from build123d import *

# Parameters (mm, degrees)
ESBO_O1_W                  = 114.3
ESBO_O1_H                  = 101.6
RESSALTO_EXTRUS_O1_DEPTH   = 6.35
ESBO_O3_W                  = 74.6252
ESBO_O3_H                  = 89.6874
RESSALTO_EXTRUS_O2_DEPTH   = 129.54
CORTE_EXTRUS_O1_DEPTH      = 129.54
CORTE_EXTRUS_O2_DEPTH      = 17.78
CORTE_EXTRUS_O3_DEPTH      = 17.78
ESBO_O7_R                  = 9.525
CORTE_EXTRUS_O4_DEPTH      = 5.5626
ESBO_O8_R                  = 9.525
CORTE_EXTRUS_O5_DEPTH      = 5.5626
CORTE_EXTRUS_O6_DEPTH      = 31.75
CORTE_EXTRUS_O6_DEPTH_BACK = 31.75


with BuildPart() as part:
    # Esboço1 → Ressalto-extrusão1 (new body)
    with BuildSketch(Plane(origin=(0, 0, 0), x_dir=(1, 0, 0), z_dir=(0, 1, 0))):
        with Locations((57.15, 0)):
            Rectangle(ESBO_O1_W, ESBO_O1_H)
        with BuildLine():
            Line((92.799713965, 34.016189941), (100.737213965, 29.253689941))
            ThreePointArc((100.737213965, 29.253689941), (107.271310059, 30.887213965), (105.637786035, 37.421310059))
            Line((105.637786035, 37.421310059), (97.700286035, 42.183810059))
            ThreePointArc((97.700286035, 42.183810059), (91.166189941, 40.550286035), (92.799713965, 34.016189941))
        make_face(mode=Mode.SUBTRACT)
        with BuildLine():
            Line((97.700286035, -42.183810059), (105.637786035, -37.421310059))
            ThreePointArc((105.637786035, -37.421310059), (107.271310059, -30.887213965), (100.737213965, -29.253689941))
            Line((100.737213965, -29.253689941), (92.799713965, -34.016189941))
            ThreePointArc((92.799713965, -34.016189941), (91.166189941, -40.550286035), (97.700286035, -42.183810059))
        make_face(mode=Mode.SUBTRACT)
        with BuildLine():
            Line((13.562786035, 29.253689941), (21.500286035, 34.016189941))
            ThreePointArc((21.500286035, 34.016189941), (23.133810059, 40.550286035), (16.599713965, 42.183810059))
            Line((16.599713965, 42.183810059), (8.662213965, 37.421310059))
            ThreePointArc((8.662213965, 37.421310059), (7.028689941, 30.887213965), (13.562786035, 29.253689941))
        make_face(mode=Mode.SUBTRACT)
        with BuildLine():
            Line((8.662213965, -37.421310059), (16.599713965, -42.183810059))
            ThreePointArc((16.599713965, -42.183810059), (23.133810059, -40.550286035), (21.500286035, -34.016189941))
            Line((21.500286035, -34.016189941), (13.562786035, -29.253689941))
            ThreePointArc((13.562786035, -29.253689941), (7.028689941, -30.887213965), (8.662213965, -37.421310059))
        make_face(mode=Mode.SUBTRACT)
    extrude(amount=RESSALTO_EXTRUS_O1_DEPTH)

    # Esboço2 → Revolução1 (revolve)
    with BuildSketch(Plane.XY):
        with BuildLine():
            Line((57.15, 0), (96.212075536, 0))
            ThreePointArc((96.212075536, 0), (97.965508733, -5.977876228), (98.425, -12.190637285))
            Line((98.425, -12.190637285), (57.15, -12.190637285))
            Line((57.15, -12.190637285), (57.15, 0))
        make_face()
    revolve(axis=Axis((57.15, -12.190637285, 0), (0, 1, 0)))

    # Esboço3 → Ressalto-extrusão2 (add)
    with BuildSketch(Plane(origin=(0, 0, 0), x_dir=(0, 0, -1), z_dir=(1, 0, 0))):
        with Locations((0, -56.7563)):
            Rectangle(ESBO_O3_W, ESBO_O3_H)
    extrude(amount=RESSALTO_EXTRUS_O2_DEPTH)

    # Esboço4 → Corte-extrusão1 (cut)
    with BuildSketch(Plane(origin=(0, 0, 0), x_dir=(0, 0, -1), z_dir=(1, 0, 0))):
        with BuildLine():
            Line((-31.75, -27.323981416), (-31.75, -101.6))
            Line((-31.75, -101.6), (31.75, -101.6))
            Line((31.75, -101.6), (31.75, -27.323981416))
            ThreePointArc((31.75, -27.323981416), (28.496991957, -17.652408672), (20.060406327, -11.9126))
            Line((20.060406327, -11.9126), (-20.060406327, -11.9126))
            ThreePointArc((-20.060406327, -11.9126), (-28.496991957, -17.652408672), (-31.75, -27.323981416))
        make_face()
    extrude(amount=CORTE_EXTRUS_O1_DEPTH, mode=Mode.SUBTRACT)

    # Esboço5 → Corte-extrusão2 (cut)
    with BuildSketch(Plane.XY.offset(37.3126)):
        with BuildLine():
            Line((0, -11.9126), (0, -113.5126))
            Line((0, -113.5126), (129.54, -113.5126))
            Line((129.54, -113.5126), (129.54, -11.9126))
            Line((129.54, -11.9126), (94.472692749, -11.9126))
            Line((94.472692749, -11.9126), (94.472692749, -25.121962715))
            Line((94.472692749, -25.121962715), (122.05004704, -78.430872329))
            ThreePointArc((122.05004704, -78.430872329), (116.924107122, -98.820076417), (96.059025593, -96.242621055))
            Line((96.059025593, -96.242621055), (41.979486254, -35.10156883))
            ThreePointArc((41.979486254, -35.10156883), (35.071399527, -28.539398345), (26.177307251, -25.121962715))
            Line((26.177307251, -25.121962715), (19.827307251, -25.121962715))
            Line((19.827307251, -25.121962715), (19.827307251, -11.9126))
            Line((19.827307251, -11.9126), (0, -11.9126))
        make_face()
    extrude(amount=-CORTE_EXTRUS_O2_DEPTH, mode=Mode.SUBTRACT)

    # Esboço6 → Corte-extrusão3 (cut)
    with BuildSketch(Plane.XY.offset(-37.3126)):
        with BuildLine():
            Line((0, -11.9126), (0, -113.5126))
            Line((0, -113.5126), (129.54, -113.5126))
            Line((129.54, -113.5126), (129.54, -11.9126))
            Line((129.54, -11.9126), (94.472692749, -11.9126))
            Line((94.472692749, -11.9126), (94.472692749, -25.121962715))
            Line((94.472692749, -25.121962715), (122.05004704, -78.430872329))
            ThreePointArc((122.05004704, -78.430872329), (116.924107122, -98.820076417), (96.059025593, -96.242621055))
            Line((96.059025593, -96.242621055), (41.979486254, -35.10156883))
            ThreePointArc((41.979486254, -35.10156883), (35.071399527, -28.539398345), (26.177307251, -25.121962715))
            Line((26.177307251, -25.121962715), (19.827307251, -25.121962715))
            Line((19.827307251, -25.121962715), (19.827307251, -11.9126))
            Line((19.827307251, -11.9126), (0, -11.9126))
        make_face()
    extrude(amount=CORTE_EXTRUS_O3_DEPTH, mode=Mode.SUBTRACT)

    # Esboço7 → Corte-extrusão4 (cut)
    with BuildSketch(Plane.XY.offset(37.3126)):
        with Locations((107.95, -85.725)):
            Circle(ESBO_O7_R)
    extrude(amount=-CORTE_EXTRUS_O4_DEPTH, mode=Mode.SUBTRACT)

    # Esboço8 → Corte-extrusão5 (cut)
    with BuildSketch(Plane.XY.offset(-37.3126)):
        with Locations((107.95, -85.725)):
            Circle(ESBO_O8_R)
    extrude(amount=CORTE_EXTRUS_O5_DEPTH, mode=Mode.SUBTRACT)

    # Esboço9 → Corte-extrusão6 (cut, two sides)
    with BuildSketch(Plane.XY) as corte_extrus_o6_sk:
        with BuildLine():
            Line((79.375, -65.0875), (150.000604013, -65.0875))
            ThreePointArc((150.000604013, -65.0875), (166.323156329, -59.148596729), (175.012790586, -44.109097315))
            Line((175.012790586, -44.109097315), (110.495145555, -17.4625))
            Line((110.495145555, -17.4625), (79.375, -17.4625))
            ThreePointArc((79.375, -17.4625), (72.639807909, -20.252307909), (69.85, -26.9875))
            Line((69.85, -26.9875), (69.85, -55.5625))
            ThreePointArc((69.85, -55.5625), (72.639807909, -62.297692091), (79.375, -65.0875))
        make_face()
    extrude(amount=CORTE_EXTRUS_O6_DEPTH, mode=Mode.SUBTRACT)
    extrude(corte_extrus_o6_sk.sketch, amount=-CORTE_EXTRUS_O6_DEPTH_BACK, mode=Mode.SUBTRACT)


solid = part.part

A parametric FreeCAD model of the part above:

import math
import FreeCAD as App
import Part
import Sketcher
from FreeCAD import Vector
Q = App.Units.Quantity

doc = App.newDocument("Part")
body = doc.addObject("PartDesign::Body", "Body")

# Sketch on XZ plane
sketch1 = doc.addObject("Sketcher::SketchObject", "Sketch")
body.addObject(sketch1)
sketch1.AttachmentSupport = (doc.XZ_Plane, [""])
sketch1.MapMode = "FlatFace"
sketch1.addGeometry([
    Part.LineSegment(Vector(0, -50.8, 0), Vector(0, 50.8, 0)),  # 0
    Part.LineSegment(Vector(0, 50.8, 0), Vector(114.3, 50.8, 0)),  # 1
    Part.LineSegment(Vector(114.3, 50.8, 0), Vector(114.3, -50.8, 0)),  # 2
    Part.LineSegment(Vector(114.3, -50.8, 0), Vector(0, -50.8, 0)),  # 3
    Part.LineSegment(Vector(16.6, 42.2, 0), Vector(8.7, 37.4, 0)),  # 4
    Part.ArcOfCircle(Part.Circle(Vector(11.1, 33.3, 0), Vector(0, 0, 1), 4.8), math.radians(121), math.radians(301)),  # 5
    Part.LineSegment(Vector(13.6, 29.3, 0), Vector(21.5, 34, 0)),  # 6
    Part.ArcOfCircle(Part.Circle(Vector(19.1, 38.1, 0), Vector(0, 0, 1), 4.8), math.radians(-59), math.radians(121)),  # 7
    Part.LineSegment(Vector(105.6, 37.4, 0), Vector(97.7, 42.2, 0)),  # 8
    Part.ArcOfCircle(Part.Circle(Vector(95.2, 38.1, 0), Vector(0, 0, 1), 4.8), math.radians(59), math.radians(239)),  # 9
    Part.LineSegment(Vector(92.8, 34, 0), Vector(100.7, 29.3, 0)),  # 10
    Part.ArcOfCircle(Part.Circle(Vector(103.2, 33.3, 0), Vector(0, 0, 1), 4.8), math.radians(-121), math.radians(59)),  # 11
    Part.LineSegment(Vector(21.5, -34, 0), Vector(13.6, -29.3, 0)),  # 12
    Part.ArcOfCircle(Part.Circle(Vector(11.1, -33.3, 0), Vector(0, 0, 1), 4.8), math.radians(59), math.radians(239)),  # 13
    Part.LineSegment(Vector(8.7, -37.4, 0), Vector(16.6, -42.2, 0)),  # 14
    Part.ArcOfCircle(Part.Circle(Vector(19.1, -38.1, 0), Vector(0, 0, 1), 4.8), math.radians(-121), math.radians(59)),  # 15
    Part.LineSegment(Vector(100.7, -29.3, 0), Vector(92.8, -34, 0)),  # 16
    Part.ArcOfCircle(Part.Circle(Vector(95.2, -38.1, 0), Vector(0, 0, 1), 4.8), math.radians(121), math.radians(301)),  # 17
    Part.LineSegment(Vector(97.7, -42.2, 0), Vector(105.6, -37.4, 0)),  # 18
    Part.ArcOfCircle(Part.Circle(Vector(103.2, -33.3, 0), Vector(0, 0, 1), 4.8), math.radians(-59), math.radians(121)),  # 19
], False)
sketch1.addConstraint([
    Sketcher.Constraint("Coincident", 0, 2, 1, 1),
    Sketcher.Constraint("Coincident", 1, 2, 2, 1),
    Sketcher.Constraint("Coincident", 2, 2, 3, 1),
    Sketcher.Constraint("Coincident", 3, 2, 0, 1),
    Sketcher.Constraint("Tangent", 4, 2, 5, 1),
    Sketcher.Constraint("Tangent", 5, 2, 6, 1),
    Sketcher.Constraint("Tangent", 6, 2, 7, 1),
    Sketcher.Constraint("Tangent", 7, 2, 4, 1),
    Sketcher.Constraint("Tangent", 8, 2, 9, 1),
    Sketcher.Constraint("Tangent", 9, 2, 10, 1),
    Sketcher.Constraint("Tangent", 10, 2, 11, 1),
    Sketcher.Constraint("Tangent", 11, 2, 8, 1),
    Sketcher.Constraint("Tangent", 12, 2, 13, 1),
    Sketcher.Constraint("Tangent", 13, 2, 14, 1),
    Sketcher.Constraint("Tangent", 14, 2, 15, 1),
    Sketcher.Constraint("Tangent", 15, 2, 12, 1),
    Sketcher.Constraint("Tangent", 16, 2, 17, 1),
    Sketcher.Constraint("Tangent", 17, 2, 18, 1),
    Sketcher.Constraint("Tangent", 18, 2, 19, 1),
    Sketcher.Constraint("Tangent", 19, 2, 16, 1),
    Sketcher.Constraint("Vertical", 0),
    Sketcher.Constraint("Horizontal", 1),
    Sketcher.Constraint("Vertical", 2),
    Sketcher.Constraint("Horizontal", 3),
    Sketcher.Constraint("Equal", 5, 7),
    Sketcher.Constraint("Equal", 7, 9),
    Sketcher.Constraint("Equal", 9, 11),
    Sketcher.Constraint("Equal", 11, 13),
    Sketcher.Constraint("Equal", 13, 15),
    Sketcher.Constraint("Equal", 15, 17),
    Sketcher.Constraint("Equal", 17, 19),
    Sketcher.Constraint("Symmetric", 0, 2, 3, 2, -1, 1),
    Sketcher.Constraint("Symmetric", 5, 3, 13, 3, -1),
    Sketcher.Constraint("Symmetric", 7, 3, 15, 3, -1),
    Sketcher.Constraint("Symmetric", 9, 3, 17, 3, -1),
    Sketcher.Constraint("Symmetric", 11, 3, 19, 3, -1),
    Sketcher.Constraint("Parallel", 10, 12),
    Sketcher.Constraint("Horizontal", 7, 3, 9, 3),
    Sketcher.Constraint("Horizontal", 5, 3, 11, 3),
    Sketcher.Constraint("DistanceY", 0, 1, 0, 2, Q("4 in")),
    Sketcher.Constraint("DistanceX", 1, 1, 1, 2, Q("4.5 in")),
    Sketcher.Constraint("Radius", 5, Q("0.1875 in")),
    Sketcher.Constraint("DistanceX", 7, 3, 9, 3, Q("3 in")),
    Sketcher.Constraint("DistanceY", 15, 3, 7, 3, Q("3 in")),
    Sketcher.Constraint("DistanceX", -1, 1, 7, 3, Q("0.75 in")),
    Sketcher.Constraint("DistanceX", -1, 1, 5, 3, Q("0.4375 in")),
    Sketcher.Constraint("DistanceY", -1, 1, 5, 3, Q("1.3125 in")),
])
pad1 = doc.addObject("PartDesign::Pad", "Pad")
body.addObject(pad1)
pad1.Profile = sketch1
pad1.Length = Q("0.25 in")
pad1.Reversed = True

# Sketch on XY plane
sketch2 = doc.addObject("Sketcher::SketchObject", "Sketch001")
body.addObject(sketch2)
sketch2.AttachmentSupport = (doc.XY_Plane, [""])
sketch2.MapMode = "FlatFace"
sketch2.addGeometry([
    Part.LineSegment(Vector(96, 0, 0), Vector(57, 0, 0)),
    Part.LineSegment(Vector(57, 0, 0), Vector(57, -12, 0)),
    Part.LineSegment(Vector(57, -12, 0), Vector(98, -12, 0)),
    Part.ArcOfCircle(Part.Circle(Vector(69, -11, 0), Vector(0, 0, 1), 30), math.radians(-2), math.radians(22)),
], False)
sketch2.addGeometry(Part.LineSegment(Vector(57, -12, 0), Vector(57, 0, 0)), True)  # axis
sketch2.addConstraint([
    Sketcher.Constraint("Coincident", 0, 2, 1, 1),
    Sketcher.Constraint("Coincident", 1, 2, 2, 1),
    Sketcher.Constraint("Coincident", 2, 2, 3, 1),
    Sketcher.Constraint("Coincident", 3, 2, 0, 1),
    Sketcher.Constraint("Horizontal", 0),
    Sketcher.Constraint("Vertical", 1),
    Sketcher.Constraint("Horizontal", 2),
    Sketcher.Constraint("Vertical", 4),
    Sketcher.Constraint("Coincident", 4, 1, 1, 2),
    Sketcher.Constraint("PointOnObject", 0, 2, -1),
    Sketcher.Constraint("PointOnObject", 4, 2, -1),
    Sketcher.Constraint("DistanceX", 2, 1, 2, 2, Q("1.625 in")),
    Sketcher.Constraint("DistanceX", -1, 1, 0, 2, Q("2.25 in")),
    Sketcher.Constraint("Radius", 3, Q("29.510976 mm")),
    Sketcher.Constraint("DistanceX", 0, 2, 0, 1, Q("39.062076 mm")),
    Sketcher.Constraint("DistanceY", 1, 2, 1, 1, Q("12.190637 mm")),
])
revolution = doc.addObject("PartDesign::Revolution", "Revolution")
body.addObject(revolution)
revolution.Profile = sketch2
revolution.ReferenceAxis = (sketch2, ["Axis0"])
revolution.Angle = 360

# Sketch on YZ plane
sketch3 = doc.addObject("Sketcher::SketchObject", "Sketch002")
body.addObject(sketch3)
sketch3.AttachmentSupport = (doc.YZ_Plane, [""])
sketch3.MapMode = "FlatFace"
sketch3.addGeometry([
    Part.LineSegment(Vector(-12, 37, 0), Vector(-102, 37, 0)),
    Part.LineSegment(Vector(-102, 37, 0), Vector(-102, -37, 0)),
    Part.LineSegment(Vector(-102, -37, 0), Vector(-12, -37, 0)),
    Part.LineSegment(Vector(-12, -37, 0), Vector(-12, 37, 0)),
], False)
sketch3.addConstraint([
    Sketcher.Constraint("Coincident", 0, 2, 1, 1),
    Sketcher.Constraint("Coincident", 1, 2, 2, 1),
    Sketcher.Constraint("Coincident", 2, 2, 3, 1),
    Sketcher.Constraint("Coincident", 3, 2, 0, 1),
    Sketcher.Constraint("Horizontal", 0),
    Sketcher.Constraint("Vertical", 1),
    Sketcher.Constraint("Horizontal", 2),
    Sketcher.Constraint("Vertical", 3),
    Sketcher.Constraint("DistanceX", 0, 2, -1, 1, Q("4 in")),
    Sketcher.Constraint("DistanceX", 0, 2, 0, 1, Q("3.531 in")),
    Sketcher.Constraint("DistanceY", 1, 2, 1, 1, Q("2.938 in")),
    Sketcher.Constraint("DistanceY", -1, 1, 0, 2, Q("1.469 in")),
])
pad2 = doc.addObject("PartDesign::Pad", "Pad001")
body.addObject(pad2)
pad2.Profile = sketch3
pad2.Length = Q("5.1 in")

# Sketch on YZ plane
sketch4 = doc.addObject("Sketcher::SketchObject", "Sketch003")
body.addObject(sketch4)
sketch4.AttachmentSupport = (doc.YZ_Plane, [""])
sketch4.MapMode = "FlatFace"
sketch4.addGeometry([
    Part.LineSegment(Vector(-27, 32, 0), Vector(-102, 32, 0)),  # 0
    Part.LineSegment(Vector(-102, 32, 0), Vector(-102, -32, 0)),  # 1
    Part.LineSegment(Vector(-102, -32, 0), Vector(-27, -32, 0)),  # 2
    Part.ArcOfCircle(Part.Circle(Vector(-27, -16, 0), Vector(0, 0, 1), 16), math.radians(-90), math.radians(-16)),  # 3
    Part.LineSegment(Vector(-12, -20, 0), Vector(-12, 20, 0)),  # 4
    Part.ArcOfCircle(Part.Circle(Vector(-27, 16, 0), Vector(0, 0, 1), 16), math.radians(16), math.radians(90)),  # 5
], False)
sketch4.addConstraint([
    Sketcher.Constraint("Coincident", 0, 2, 1, 1),
    Sketcher.Constraint("Coincident", 1, 2, 2, 1),
    Sketcher.Constraint("Tangent", 2, 2, 3, 1),
    Sketcher.Constraint("Coincident", 3, 2, 4, 1),
    Sketcher.Constraint("Coincident", 4, 2, 5, 1),
    Sketcher.Constraint("Tangent", 5, 2, 0, 1),
    Sketcher.Constraint("Horizontal", 0),
    Sketcher.Constraint("Vertical", 1),
    Sketcher.Constraint("Horizontal", 2),
    Sketcher.Constraint("Vertical", 4),
    Sketcher.Constraint("Equal", 3, 5),
    Sketcher.Constraint("Symmetric", 3, 3, 5, 3, -1),
    Sketcher.Constraint("DistanceY", 1, 2, 1, 1, Q("2.5 in")),
    Sketcher.Constraint("DistanceX", 0, 2, -1, 1, Q("4 in")),
    Sketcher.Constraint("DistanceX", 3, 2, -1, 1, Q("0.469 in")),
    Sketcher.Constraint("Radius", 3, Q("16.003862 mm")),
    Sketcher.Constraint("DistanceX", 0, 2, 0, 1, Q("74.276019 mm")),
])
pocket1 = doc.addObject("PartDesign::Pocket", "Pocket")
body.addObject(pocket1)
pocket1.Profile = sketch4
pocket1.Length = Q("5.1 in")
pocket1.Reversed = True

# Sketch on XY plane
sketch5 = doc.addObject("Sketcher::SketchObject", "Sketch004")
body.addObject(sketch5)
sketch5.AttachmentSupport = (doc.XY_Plane, [""])
sketch5.MapMode = "FlatFace"
sketch5.AttachmentOffset = App.Placement(Vector(0, 0, 1.469 * 25.4), App.Rotation())
sketch5.addGeometry([
    Part.LineSegment(Vector(0, -12, 0), Vector(0, -114, 0)),  # 0
    Part.LineSegment(Vector(0, -114, 0), Vector(130, -114, 0)),  # 1
    Part.LineSegment(Vector(130, -114, 0), Vector(130, -12, 0)),  # 2
    Part.LineSegment(Vector(130, -12, 0), Vector(94, -12, 0)),  # 3
    Part.LineSegment(Vector(94, -12, 0), Vector(94, -25, 0)),  # 4
    Part.LineSegment(Vector(94, -25, 0), Vector(122, -78, 0)),  # 5
    Part.ArcOfCircle(Part.Circle(Vector(108, -86, 0), Vector(0, 0, 1), 16), math.radians(-139), math.radians(27)),  # 6
    Part.LineSegment(Vector(96, -96, 0), Vector(42, -35, 0)),  # 7
    Part.ArcOfCircle(Part.Circle(Vector(22, -49, 0), Vector(0, 0, 1), 24), math.radians(35), math.radians(80)),  # 8
    Part.LineSegment(Vector(26, -25, 0), Vector(20, -25, 0)),  # 9
    Part.LineSegment(Vector(20, -25, 0), Vector(20, -12, 0)),  # 10
    Part.LineSegment(Vector(20, -12, 0), Vector(0, -12, 0)),  # 11
], False)
sketch5.addConstraint([
    Sketcher.Constraint("Coincident", 0, 2, 1, 1),
    Sketcher.Constraint("Coincident", 1, 2, 2, 1),
    Sketcher.Constraint("Coincident", 2, 2, 3, 1),
    Sketcher.Constraint("Coincident", 3, 2, 4, 1),
    Sketcher.Constraint("Coincident", 4, 2, 5, 1),
    Sketcher.Constraint("Tangent", 5, 2, 6, 2),
    Sketcher.Constraint("Tangent", 6, 1, 7, 1),
    Sketcher.Constraint("Coincident", 7, 2, 8, 1),
    Sketcher.Constraint("Coincident", 8, 2, 9, 1),
    Sketcher.Constraint("Coincident", 9, 2, 10, 1),
    Sketcher.Constraint("Coincident", 10, 2, 11, 1),
    Sketcher.Constraint("Coincident", 11, 2, 0, 1),
    Sketcher.Constraint("Vertical", 0),
    Sketcher.Constraint("Horizontal", 1),
    Sketcher.Constraint("Vertical", 2),
    Sketcher.Constraint("Horizontal", 3),
    Sketcher.Constraint("Vertical", 4),
    Sketcher.Constraint("Horizontal", 9),
    Sketcher.Constraint("Vertical", 10),
    Sketcher.Constraint("Horizontal", 11),
    Sketcher.Constraint("PointOnObject", 0, 2, -2),
    Sketcher.Constraint("Horizontal", 4, 2, 8, 2),
    Sketcher.Constraint("Horizontal", 3, 2, 10, 2),
    Sketcher.Constraint("DistanceY", 0, 2, 0, 1, Q("4 in")),
    Sketcher.Constraint("DistanceX", 1, 1, 1, 2, Q("5.1 in")),
    Sketcher.Constraint("Radius", 6, Q("0.625 in")),
    Sketcher.Constraint("DistanceX", 9, 2, 9, 1, Q("0.25 in")),
    Sketcher.Constraint("DistanceX", -1, 1, 6, 3, Q("4.25 in")),
    Sketcher.Constraint("DistanceY", 6, 3, -1, 1, Q("3.375 in")),
    Sketcher.Constraint("DistanceY", 0, 2, -1, 1, Q("4.469 in")),
    Sketcher.Constraint("Radius", 8, Q("24.408487 mm")),
    Sketcher.Constraint("DistanceX", 8, 3, 8, 2, Q("4.139199 mm")),
    Sketcher.Constraint("Distance", 7, Q("81.626128 mm")),
    Sketcher.Constraint("DistanceX", 3, 2, 3, 1, Q("35.067307 mm")),
    Sketcher.Constraint("DistanceX", 11, 2, 11, 1, Q("19.827307 mm")),
    Sketcher.Constraint("DistanceY", 4, 2, 4, 1, Q("13.209363 mm")),
])
pocket2 = doc.addObject("PartDesign::Pocket", "Pocket001")
body.addObject(pocket2)
pocket2.Profile = sketch5
pocket2.Length = Q("0.7 in")

# Sketch on XY plane
sketch6 = doc.addObject("Sketcher::SketchObject", "Sketch005")
body.addObject(sketch6)
sketch6.AttachmentSupport = (doc.XY_Plane, [""])
sketch6.MapMode = "FlatFace"
sketch6.AttachmentOffset = App.Placement(Vector(0, 0, -1.469 * 25.4), App.Rotation())
sketch6.addGeometry([
    Part.LineSegment(Vector(0, -12, 0), Vector(0, -114, 0)),  # 0
    Part.LineSegment(Vector(0, -114, 0), Vector(130, -114, 0)),  # 1
    Part.LineSegment(Vector(130, -114, 0), Vector(130, -12, 0)),  # 2
    Part.LineSegment(Vector(130, -12, 0), Vector(94, -12, 0)),  # 3
    Part.LineSegment(Vector(94, -12, 0), Vector(94, -25, 0)),  # 4
    Part.LineSegment(Vector(94, -25, 0), Vector(122, -78, 0)),  # 5
    Part.ArcOfCircle(Part.Circle(Vector(108, -86, 0), Vector(0, 0, 1), 16), math.radians(-139), math.radians(27)),  # 6
    Part.LineSegment(Vector(96, -96, 0), Vector(42, -35, 0)),  # 7
    Part.ArcOfCircle(Part.Circle(Vector(22, -49, 0), Vector(0, 0, 1), 24), math.radians(35), math.radians(80)),  # 8
    Part.LineSegment(Vector(26, -25, 0), Vector(20, -25, 0)),  # 9
    Part.LineSegment(Vector(20, -25, 0), Vector(20, -12, 0)),  # 10
    Part.LineSegment(Vector(20, -12, 0), Vector(0, -12, 0)),  # 11
], False)
sketch6.addConstraint([
    Sketcher.Constraint("Coincident", 0, 2, 1, 1),
    Sketcher.Constraint("Coincident", 1, 2, 2, 1),
    Sketcher.Constraint("Coincident", 2, 2, 3, 1),
    Sketcher.Constraint("Coincident", 3, 2, 4, 1),
    Sketcher.Constraint("Coincident", 4, 2, 5, 1),
    Sketcher.Constraint("Tangent", 5, 2, 6, 2),
    Sketcher.Constraint("Tangent", 6, 1, 7, 1),
    Sketcher.Constraint("Coincident", 7, 2, 8, 1),
    Sketcher.Constraint("Coincident", 8, 2, 9, 1),
    Sketcher.Constraint("Coincident", 9, 2, 10, 1),
    Sketcher.Constraint("Coincident", 10, 2, 11, 1),
    Sketcher.Constraint("Coincident", 11, 2, 0, 1),
    Sketcher.Constraint("Vertical", 0),
    Sketcher.Constraint("Horizontal", 1),
    Sketcher.Constraint("Vertical", 2),
    Sketcher.Constraint("Horizontal", 3),
    Sketcher.Constraint("Vertical", 4),
    Sketcher.Constraint("Horizontal", 9),
    Sketcher.Constraint("Vertical", 10),
    Sketcher.Constraint("Horizontal", 11),
    Sketcher.Constraint("PointOnObject", 0, 2, -2),
    Sketcher.Constraint("Horizontal", 4, 2, 8, 2),
    Sketcher.Constraint("Horizontal", 3, 2, 10, 2),
    Sketcher.Constraint("DistanceY", 0, 2, 0, 1, Q("4 in")),
    Sketcher.Constraint("DistanceX", 1, 1, 1, 2, Q("5.1 in")),
    Sketcher.Constraint("Radius", 6, Q("0.625 in")),
    Sketcher.Constraint("DistanceX", 9, 2, 9, 1, Q("0.25 in")),
    Sketcher.Constraint("DistanceX", -1, 1, 6, 3, Q("4.25 in")),
    Sketcher.Constraint("DistanceY", 6, 3, -1, 1, Q("3.375 in")),
    Sketcher.Constraint("DistanceY", 0, 2, -1, 1, Q("4.469 in")),
    Sketcher.Constraint("Radius", 8, Q("24.408487 mm")),
    Sketcher.Constraint("DistanceX", 8, 3, 8, 2, Q("4.139199 mm")),
    Sketcher.Constraint("Distance", 7, Q("81.626128 mm")),
    Sketcher.Constraint("DistanceX", 3, 2, 3, 1, Q("35.067307 mm")),
    Sketcher.Constraint("DistanceX", 11, 2, 11, 1, Q("19.827307 mm")),
    Sketcher.Constraint("DistanceY", 4, 2, 4, 1, Q("13.209363 mm")),
])
pocket3 = doc.addObject("PartDesign::Pocket", "Pocket002")
body.addObject(pocket3)
pocket3.Profile = sketch6
pocket3.Length = Q("0.7 in")
pocket3.Reversed = True

# Sketch on XY plane
sketch7 = doc.addObject("Sketcher::SketchObject", "Sketch006")
body.addObject(sketch7)
sketch7.AttachmentSupport = (doc.XY_Plane, [""])
sketch7.MapMode = "FlatFace"
sketch7.AttachmentOffset = App.Placement(Vector(0, 0, 1.469 * 25.4), App.Rotation())
sketch7.addGeometry(Part.Circle(Vector(108, -86, 0), Vector(0, 0, 1), 10), False)
sketch7.addConstraint([
    Sketcher.Constraint("Diameter", 0, Q("0.75 in")),
    Sketcher.Constraint("DistanceX", -1, 1, 0, 3, Q("4.25 in")),
    Sketcher.Constraint("DistanceY", 0, 3, -1, 1, Q("3.375 in")),
])
pocket4 = doc.addObject("PartDesign::Pocket", "Pocket003")
body.addObject(pocket4)
pocket4.Profile = sketch7
pocket4.Length = Q("0.219 in")

# Sketch on XY plane
sketch8 = doc.addObject("Sketcher::SketchObject", "Sketch007")
body.addObject(sketch8)
sketch8.AttachmentSupport = (doc.XY_Plane, [""])
sketch8.MapMode = "FlatFace"
sketch8.AttachmentOffset = App.Placement(Vector(0, 0, -1.469 * 25.4), App.Rotation())
sketch8.addGeometry(Part.Circle(Vector(108, -86, 0), Vector(0, 0, 1), 10), False)
sketch8.addConstraint([
    Sketcher.Constraint("Diameter", 0, Q("0.75 in")),
    Sketcher.Constraint("DistanceX", -1, 1, 0, 3, Q("4.25 in")),
    Sketcher.Constraint("DistanceY", 0, 3, -1, 1, Q("3.375 in")),
])
pocket5 = doc.addObject("PartDesign::Pocket", "Pocket004")
body.addObject(pocket5)
pocket5.Profile = sketch8
pocket5.Length = Q("0.219 in")
pocket5.Reversed = True

# Sketch on XY plane
sketch9 = doc.addObject("Sketcher::SketchObject", "Sketch008")
body.addObject(sketch9)
sketch9.AttachmentSupport = (doc.XY_Plane, [""])
sketch9.MapMode = "FlatFace"
sketch9.addGeometry([
    Part.LineSegment(Vector(79, -65, 0), Vector(150, -65, 0)),  # 0
    Part.ArcOfCircle(Part.Circle(Vector(150, -40, 0), Vector(0, 0, 1), 25), math.radians(-90), math.radians(-10)),  # 1
    Part.LineSegment(Vector(175, -44, 0), Vector(110, -17, 0)),  # 2
    Part.LineSegment(Vector(110, -17, 0), Vector(79, -17, 0)),  # 3
    Part.ArcOfCircle(Part.Circle(Vector(79, -27, 0), Vector(0, 0, 1), 10), math.radians(90), math.radians(180)),  # 4
    Part.LineSegment(Vector(70, -27, 0), Vector(70, -56, 0)),  # 5
    Part.ArcOfCircle(Part.Circle(Vector(79, -56, 0), Vector(0, 0, 1), 10), math.radians(180), math.radians(270)),  # 6
], False)
sketch9.addConstraint([
    Sketcher.Constraint("Tangent", 0, 2, 1, 1),
    Sketcher.Constraint("Coincident", 1, 2, 2, 1),
    Sketcher.Constraint("Coincident", 2, 2, 3, 1),
    Sketcher.Constraint("Tangent", 3, 2, 4, 1),
    Sketcher.Constraint("Tangent", 4, 2, 5, 1),
    Sketcher.Constraint("Tangent", 5, 2, 6, 1),
    Sketcher.Constraint("Tangent", 6, 2, 0, 1),
    Sketcher.Constraint("Horizontal", 0),
    Sketcher.Constraint("Horizontal", 3),
    Sketcher.Constraint("Vertical", 5),
    Sketcher.Constraint("Equal", 4, 6),
    Sketcher.Constraint("Radius", 1, Q("1 in")),
    Sketcher.Constraint("Radius", 4, Q("0.375 in")),
    Sketcher.Constraint("DistanceY", 1, 3, 4, 3, Q("0.5 in")),
    Sketcher.Constraint("DistanceX", -1, 1, 4, 2, Q("2.75 in")),
    Sketcher.Constraint("DistanceY", 1, 3, -1, 1, Q("1.5625 in")),
    Sketcher.Constraint("Distance", 2, Q("69.80378 mm")),
    Sketcher.Constraint("DistanceX", 0, 1, 0, 2, Q("70.625604 mm")),
    Sketcher.Constraint("DistanceX", 3, 2, 3, 1, Q("31.120146 mm")),
])
pocket6 = doc.addObject("PartDesign::Pocket", "Pocket005")
body.addObject(pocket6)
pocket6.Profile = sketch9
pocket6.Type = "TwoLengths"
pocket6.Length = Q("1.25 in")
pocket6.Length2 = Q("1.25 in")
pocket6.Reversed = True

doc.recompute()
